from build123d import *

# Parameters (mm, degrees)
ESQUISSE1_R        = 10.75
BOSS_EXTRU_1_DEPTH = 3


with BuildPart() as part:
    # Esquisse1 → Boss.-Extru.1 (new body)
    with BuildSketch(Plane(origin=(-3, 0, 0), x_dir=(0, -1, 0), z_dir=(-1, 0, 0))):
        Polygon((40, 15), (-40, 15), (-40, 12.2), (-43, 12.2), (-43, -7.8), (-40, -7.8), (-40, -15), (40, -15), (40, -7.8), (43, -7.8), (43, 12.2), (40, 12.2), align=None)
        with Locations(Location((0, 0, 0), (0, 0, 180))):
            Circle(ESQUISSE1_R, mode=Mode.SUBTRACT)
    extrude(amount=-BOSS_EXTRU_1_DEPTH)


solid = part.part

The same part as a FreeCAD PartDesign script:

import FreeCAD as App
import Part
import Sketcher

doc = App.newDocument("Part")
body = doc.addObject("PartDesign::Body", "Body")

sketch1 = body.newObject("Sketcher::SketchObject", "Sketch")
sketch1.AttachmentSupport = (doc.getObject("YZ_Plane"), [""])
sketch1.MapMode = "FlatFace"
sketch1.AttachmentOffset = App.Placement(App.Vector(0, 0, -3), App.Rotation())
sketch1.addGeometry([
    Part.LineSegment(App.Vector(-40, 15, 0), App.Vector(40, 15, 0)),
    Part.LineSegment(App.Vector(40, 15, 0), App.Vector(40, 12.2, 0)),
    Part.LineSegment(App.Vector(40, 12.2, 0), App.Vector(43, 12.2, 0)),
    Part.LineSegment(App.Vector(43, 12.2, 0), App.Vector(43, -7.8, 0)),
    Part.LineSegment(App.Vector(43, -7.8, 0), App.Vector(40, -7.8, 0)),
    Part.LineSegment(App.Vector(40, -7.8, 0), App.Vector(40, -15, 0)),
    Part.LineSegment(App.Vector(40, -15, 0), App.Vector(-40, -15, 0)),
    Part.LineSegment(App.Vector(-40, -15, 0), App.Vector(-40, -7.8, 0)),
    Part.LineSegment(App.Vector(-40, -7.8, 0), App.Vector(-43, -7.8, 0)),
    Part.LineSegment(App.Vector(-43, -7.8, 0), App.Vector(-43, 12.2, 0)),
    Part.LineSegment(App.Vector(-43, 12.2, 0), App.Vector(-40, 12.2, 0)),
    Part.LineSegment(App.Vector(-40, 12.2, 0), App.Vector(-40, 15, 0)),
    Part.Circle(App.Vector(0, 0, 0), App.Vector(0, 0, 1), 10.8),
], False)
sketch1.addConstraint([
    Sketcher.Constraint("Coincident", 0, 2, 1, 1),
    Sketcher.Constraint("Coincident", 1, 2, 2, 1),
    Sketcher.Constraint("Coincident", 2, 2, 3, 1),
    Sketcher.Constraint("Coincident", 3, 2, 4, 1),
    Sketcher.Constraint("Coincident", 4, 2, 5, 1),
    Sketcher.Constraint("Coincident", 5, 2, 6, 1),
    Sketcher.Constraint("Coincident", 6, 2, 7, 1),
    Sketcher.Constraint("Coincident", 7, 2, 8, 1),
    Sketcher.Constraint("Coincident", 8, 2, 9, 1),
    Sketcher.Constraint("Coincident", 9, 2, 10, 1),
    Sketcher.Constraint("Coincident", 10, 2, 11, 1),
    Sketcher.Constraint("Coincident", 11, 2, 0, 1),
    Sketcher.Constraint("Horizontal", 0),
    Sketcher.Constraint("Vertical", 1),
    Sketcher.Constraint("Horizontal", 2),
    Sketcher.Constraint("Vertical", 3),
    Sketcher.Constraint("Horizontal", 4),
    Sketcher.Constraint("Vertical", 5),
    Sketcher.Constraint("Horizontal", 6),
    Sketcher.Constraint("Vertical", 7),
    Sketcher.Constraint("Horizontal", 8),
    Sketcher.Constraint("Vertical", 9),
    Sketcher.Constraint("Horizontal", 10),
    Sketcher.Constraint("Vertical", 11),
    Sketcher.Constraint("Coincident", 12, 3, -1, 1),
    Sketcher.Constraint("Symmetric", 0, 2, 6, 2, -1, 1),
    Sketcher.Constraint("Symmetric", 4, 2, 7, 2, -2),
    Sketcher.Constraint("Symmetric", 2, 2, 9, 2, -2),
    Sketcher.Constraint("Vertical", 7, 2, 10, 2),
    Sketcher.Constraint("Diameter", 12, 21.5),
    Sketcher.Constraint("DistanceX", 0, 1, 0, 2, 80.0),
    Sketcher.Constraint("DistanceX", 2, 1, 2, 2, 3.0),
    Sketcher.Constraint("DistanceY", 3, 2, 3, 1, 20.0),
    Sketcher.Constraint("DistanceY", 1, 2, 1, 1, 2.8),
    Sketcher.Constraint("DistanceY", 5, 2, 5, 1, 7.2),
])
pad1 = body.newObject("PartDesign::Pad", "Pad")
pad1.Profile = sketch1
pad1.Length = 3

doc.recompute()
